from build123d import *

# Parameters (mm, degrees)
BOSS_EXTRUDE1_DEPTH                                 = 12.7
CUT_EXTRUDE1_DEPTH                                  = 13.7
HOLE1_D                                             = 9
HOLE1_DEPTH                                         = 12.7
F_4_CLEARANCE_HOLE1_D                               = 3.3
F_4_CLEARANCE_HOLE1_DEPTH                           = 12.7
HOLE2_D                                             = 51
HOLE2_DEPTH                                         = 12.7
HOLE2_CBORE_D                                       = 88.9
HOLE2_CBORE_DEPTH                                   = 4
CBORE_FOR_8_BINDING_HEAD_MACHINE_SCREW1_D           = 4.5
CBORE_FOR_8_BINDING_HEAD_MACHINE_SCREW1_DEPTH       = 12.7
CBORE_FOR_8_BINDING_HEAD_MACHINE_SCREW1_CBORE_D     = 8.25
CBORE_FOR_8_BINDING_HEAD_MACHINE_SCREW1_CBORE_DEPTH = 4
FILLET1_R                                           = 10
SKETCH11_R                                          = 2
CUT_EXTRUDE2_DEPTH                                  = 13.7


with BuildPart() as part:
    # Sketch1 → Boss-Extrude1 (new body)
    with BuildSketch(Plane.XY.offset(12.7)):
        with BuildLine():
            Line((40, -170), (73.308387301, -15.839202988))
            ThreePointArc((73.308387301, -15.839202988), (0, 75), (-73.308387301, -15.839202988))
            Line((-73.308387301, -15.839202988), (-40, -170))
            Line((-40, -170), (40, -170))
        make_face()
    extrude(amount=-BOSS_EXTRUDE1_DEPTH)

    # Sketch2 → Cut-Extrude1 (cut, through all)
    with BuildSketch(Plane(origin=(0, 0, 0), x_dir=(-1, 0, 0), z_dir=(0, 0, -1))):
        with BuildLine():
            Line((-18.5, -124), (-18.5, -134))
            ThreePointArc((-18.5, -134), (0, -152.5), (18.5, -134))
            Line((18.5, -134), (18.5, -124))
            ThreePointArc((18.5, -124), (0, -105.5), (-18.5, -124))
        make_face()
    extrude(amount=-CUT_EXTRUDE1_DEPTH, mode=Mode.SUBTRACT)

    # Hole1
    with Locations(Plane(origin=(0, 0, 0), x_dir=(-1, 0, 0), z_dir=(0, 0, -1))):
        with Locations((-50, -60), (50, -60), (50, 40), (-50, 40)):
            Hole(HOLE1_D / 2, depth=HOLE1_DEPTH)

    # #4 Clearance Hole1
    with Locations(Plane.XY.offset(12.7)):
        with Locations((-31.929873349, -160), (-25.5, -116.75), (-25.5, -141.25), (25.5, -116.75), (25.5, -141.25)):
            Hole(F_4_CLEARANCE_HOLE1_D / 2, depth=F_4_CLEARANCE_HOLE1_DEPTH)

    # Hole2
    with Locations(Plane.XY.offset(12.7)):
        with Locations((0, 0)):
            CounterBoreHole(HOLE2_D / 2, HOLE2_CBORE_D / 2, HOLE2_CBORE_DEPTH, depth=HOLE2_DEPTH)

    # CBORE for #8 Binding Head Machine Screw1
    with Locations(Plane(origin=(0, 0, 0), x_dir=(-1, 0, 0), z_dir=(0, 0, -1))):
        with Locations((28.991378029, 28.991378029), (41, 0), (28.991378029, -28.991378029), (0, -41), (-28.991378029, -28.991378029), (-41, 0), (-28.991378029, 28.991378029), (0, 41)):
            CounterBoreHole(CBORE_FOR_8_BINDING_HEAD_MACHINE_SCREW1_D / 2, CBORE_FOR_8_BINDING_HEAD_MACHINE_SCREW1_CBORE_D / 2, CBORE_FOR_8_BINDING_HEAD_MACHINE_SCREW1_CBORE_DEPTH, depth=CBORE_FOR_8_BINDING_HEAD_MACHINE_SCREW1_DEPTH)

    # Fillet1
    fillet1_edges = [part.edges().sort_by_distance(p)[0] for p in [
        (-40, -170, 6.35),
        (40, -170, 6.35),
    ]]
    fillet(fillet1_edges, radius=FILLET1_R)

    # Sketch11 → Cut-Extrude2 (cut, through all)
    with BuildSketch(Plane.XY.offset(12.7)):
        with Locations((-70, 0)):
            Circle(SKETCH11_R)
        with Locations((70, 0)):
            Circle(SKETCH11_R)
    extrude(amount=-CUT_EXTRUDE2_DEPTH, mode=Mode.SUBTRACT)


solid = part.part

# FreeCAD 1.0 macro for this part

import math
import FreeCAD as App
import Part
import Sketcher
from FreeCAD import Vector


def edges_at(feature, points):
    """Names of the edges that pass closest to the given points."""
    edges = feature.Shape.Edges
    near = lambda p: min(range(len(edges)), key=lambda i: edges[i].distToShape(Part.Vertex(*p))[0])
    return sorted({f"Edge{near(p) + 1}" for p in points})

doc = App.newDocument("Part")
body = doc.addObject("PartDesign::Body", "Body")

# Sketch on XY plane
sketch1 = body.newObject("Sketcher::SketchObject", "Sketch")
sketch1.AttachmentSupport = (doc.getObject("XY_Plane"), [""])
sketch1.MapMode = "FlatFace"
sketch1.AttachmentOffset = App.Placement(Vector(0, 0, 12.7), App.Rotation())
sketch1.addGeometry(Part.LineSegment(Vector(40, -170, 0), Vector(73, -16, 0)), False)
sketch1.addGeometry(Part.ArcOfCircle(Part.Circle(Vector(0, 0, 0), Vector(0, 0, 1), 75), math.radians(-12), math.radians(192)), False)
sketch1.addGeometry(Part.LineSegment(Vector(-73, -16, 0), Vector(-40, -170, 0)), False)
sketch1.addGeometry(Part.LineSegment(Vector(-40, -170, 0), Vector(40, -170, 0)), False)
sketch1.addConstraint(Sketcher.Constraint("Tangent", 0, 2, 1, 1))
sketch1.addConstraint(Sketcher.Constraint("Tangent", 1, 2, 2, 1))
sketch1.addConstraint(Sketcher.Constraint("Coincident", 2, 2, 3, 1))
sketch1.addConstraint(Sketcher.Constraint("Coincident", 3, 2, 0, 1))
sketch1.addConstraint(Sketcher.Constraint("Horizontal", 3))
sketch1.addConstraint(Sketcher.Constraint("Coincident", 1, 3, -1, 1))
sketch1.addConstraint(Sketcher.Constraint("Horizontal", 0, 2, 1, 2))
sketch1.addConstraint(Sketcher.Constraint("Radius", 1, 75.0))
sketch1.addConstraint(Sketcher.Constraint("DistanceX", 3, 1, 3, 2, 80.0))
sketch1.addConstraint(Sketcher.Constraint("DistanceY", 2, 2, -1, 1, 170.0))
pad1 = body.newObject("PartDesign::Pad", "Pad")
pad1.Profile = sketch1
pad1.Length = 12.7
pad1.Reversed = True

# Sketch on XY plane
sketch2 = body.newObject("Sketcher::SketchObject", "Sketch001")
sketch2.AttachmentSupport = (doc.getObject("XY_Plane"), [""])
sketch2.MapMode = "FlatFace"
sketch2.addGeometry(Part.LineSegment(Vector(18, -124, 0), Vector(18, -134, 0)), False)
sketch2.addGeometry(Part.ArcOfCircle(Part.Circle(Vector(0, -134, 0), Vector(0, 0, 1), 18), math.radians(180), math.radians(360)), False)
sketch2.addGeometry(Part.LineSegment(Vector(-18, -134, 0), Vector(-18, -124, 0)), False)
sketch2.addGeometry(Part.ArcOfCircle(Part.Circle(Vector(0, -124, 0), Vector(0, 0, 1), 18), math.radians(0), math.radians(180)), False)
sketch2.addConstraint(Sketcher.Constraint("Tangent", 0, 2, 1, 2))
sketch2.addConstraint(Sketcher.Constraint("Tangent", 1, 1, 2, 1))
sketch2.addConstraint(Sketcher.Constraint("Tangent", 2, 2, 3, 2))
sketch2.addConstraint(Sketcher.Constraint("Tangent", 3, 1, 0, 1))
sketch2.addConstraint(Sketcher.Constraint("Vertical", 0))
sketch2.addConstraint(Sketcher.Constraint("Vertical", 2))
sketch2.addConstraint(Sketcher.Constraint("PointOnObject", 1, 3, -2))
sketch2.addConstraint(Sketcher.Constraint("Radius", 1, 18.5))
sketch2.addConstraint(Sketcher.Constraint("DistanceY", 0, 2, 0, 1, 10.0))
sketch2.addConstraint(Sketcher.Constraint("DistanceY", 1, 3, -1, 1, 134.0))
pocket1 = body.newObject("PartDesign::Pocket", "Pocket")
pocket1.Profile = sketch2
pocket1.Type = "ThroughAll"
pocket1.Reversed = True

# Sketch on XY plane
sketch3 = body.newObject("Sketcher::SketchObject", "Sketch002")
sketch3.AttachmentSupport = (doc.getObject("XY_Plane"), [""])
sketch3.MapMode = "FlatFace"
sketch3.addGeometry(Part.Circle(Vector(50, -60, 0), Vector(0, 0, 1), 4.5), False)
sketch3.addGeometry(Part.Circle(Vector(-50, -60, 0), Vector(0, 0, 1), 4.5), False)
sketch3.addGeometry(Part.Circle(Vector(-50, 40, 0), Vector(0, 0, 1), 4.5), False)
sketch3.addGeometry(Part.Circle(Vector(50, 40, 0), Vector(0, 0, 1), 4.5), False)
sketch3.addConstraint(Sketcher.Constraint("Equal", 0, 1))
sketch3.addConstraint(Sketcher.Constraint("Equal", 1, 2))
sketch3.addConstraint(Sketcher.Constraint("Equal", 2, 3))
sketch3.addConstraint(Sketcher.Constraint("Symmetric", 0, 3, 1, 3, -2))
sketch3.addConstraint(Sketcher.Constraint("Symmetric", 2, 3, 3, 3, -2))
sketch3.addConstraint(Sketcher.Constraint("Vertical", 1, 3, 2, 3))
sketch3.addConstraint(Sketcher.Constraint("Diameter", 0, 9.0))
sketch3.addConstraint(Sketcher.Constraint("DistanceX", -1, 1, 0, 3, 50.0))
sketch3.addConstraint(Sketcher.Constraint("DistanceY", 0, 3, -1, 1, 60.0))
sketch3.addConstraint(Sketcher.Constraint("DistanceY", -1, 1, 2, 3, 40.0))
doc.recompute()
hole = body.newObject("PartDesign::Hole", "Hole")
hole.Profile = sketch3
hole.ThreadType = "None"
hole.Diameter = 9
hole.DepthType = "Dimension"
hole.Depth = 12.7
hole.DrillPoint = "Flat"
hole.Reversed = True

# Sketch on XY plane
sketch4 = body.newObject("Sketcher::SketchObject", "Sketch003")
sketch4.AttachmentSupport = (doc.getObject("XY_Plane"), [""])
sketch4.MapMode = "FlatFace"
sketch4.AttachmentOffset = App.Placement(Vector(0, 0, 12.7), App.Rotation())
sketch4.addGeometry(Part.Circle(Vector(-31.9, -160, 0), Vector(0, 0, 1), 1.6), False)
sketch4.addGeometry(Part.Circle(Vector(-25.5, -116.8, 0), Vector(0, 0, 1), 1.6), False)
sketch4.addGeometry(Part.Circle(Vector(-25.5, -141.2, 0), Vector(0, 0, 1), 1.6), False)
sketch4.addGeometry(Part.Circle(Vector(25.5, -116.8, 0), Vector(0, 0, 1), 1.6), False)
sketch4.addGeometry(Part.Circle(Vector(25.5, -141.2, 0), Vector(0, 0, 1), 1.6), False)
sketch4.addConstraint(Sketcher.Constraint("Equal", 0, 1))
sketch4.addConstraint(Sketcher.Constraint("Equal", 1, 2))
sketch4.addConstraint(Sketcher.Constraint("Equal", 2, 3))
sketch4.addConstraint(Sketcher.Constraint("Equal", 3, 4))
sketch4.addConstraint(Sketcher.Constraint("Symmetric", 1, 3, 3, 3, -2))
sketch4.addConstraint(Sketcher.Constraint("Symmetric", 2, 3, 4, 3, -2))
sketch4.addConstraint(Sketcher.Constraint("Vertical", 1, 3, 2, 3))
sketch4.addConstraint(Sketcher.Constraint("Diameter", 0, 3.3))
sketch4.addConstraint(Sketcher.Constraint("DistanceY", 0, 3, -1, 1, 160.0))
sketch4.addConstraint(Sketcher.Constraint("DistanceX", 1, 3, 3, 3, 51.0))
sketch4.addConstraint(Sketcher.Constraint("DistanceY", 2, 3, 1, 3, 24.5))
sketch4.addConstraint(Sketcher.Constraint("DistanceY", 1, 3, -1, 1, 116.75))
sketch4.addConstraint(Sketcher.Constraint("DistanceX", 0, 3, -1, 1, 31.929873))
doc.recompute()
hole2 = body.newObject("PartDesign::Hole", "Hole001")
hole2.Profile = sketch4
hole2.ThreadType = "None"
hole2.Diameter = 3.3
hole2.DepthType = "Dimension"
hole2.Depth = 12.7
hole2.DrillPoint = "Flat"

# Sketch on XY plane
sketch5 = body.newObject("Sketcher::SketchObject", "Sketch004")
sketch5.AttachmentSupport = (doc.getObject("XY_Plane"), [""])
sketch5.MapMode = "FlatFace"
sketch5.AttachmentOffset = App.Placement(Vector(0, 0, 12.7), App.Rotation())
sketch5.addGeometry(Part.Circle(Vector(0, 0, 0), Vector(0, 0, 1), 26), False)
sketch5.addConstraint(Sketcher.Constraint("Coincident", 0, 3, -1, 1))
sketch5.addConstraint(Sketcher.Constraint("Diameter", 0, 51.0))
doc.recompute()
hole3 = body.newObject("PartDesign::Hole", "Hole002")
hole3.Profile = sketch5
hole3.ThreadType = "None"
hole3.Diameter = 51
hole3.DepthType = "Dimension"
hole3.Depth = 12.7
hole3.DrillPoint = "Flat"
hole3.HoleCutType = "Counterbore"
hole3.HoleCutDiameter = 88.9
hole3.HoleCutDepth = 4

# Sketch on XY plane
sketch6 = body.newObject("Sketcher::SketchObject", "Sketch005")
sketch6.AttachmentSupport = (doc.getObject("XY_Plane"), [""])
sketch6.MapMode = "FlatFace"
sketch6.addGeometry(Part.Circle(Vector(-29, 29, 0), Vector(0, 0, 1), 2.2), False)
sketch6.addGeometry(Part.Circle(Vector(-41, 0, 0), Vector(0, 0, 1), 2.2), False)
sketch6.addGeometry(Part.Circle(Vector(-29, -29, 0), Vector(0, 0, 1), 2.2), False)
sketch6.addGeometry(Part.Circle(Vector(0, -41, 0), Vector(0, 0, 1), 2.2), False)
sketch6.addGeometry(Part.Circle(Vector(29, -29, 0), Vector(0, 0, 1), 2.2), False)
sketch6.addGeometry(Part.Circle(Vector(41, 0, 0), Vector(0, 0, 1), 2.2), False)
sketch6.addGeometry(Part.Circle(Vector(29, 29, 0), Vector(0, 0, 1), 2.2), False)
sketch6.addGeometry(Part.Circle(Vector(0, 41, 0), Vector(0, 0, 1), 2.2), False)
sketch6.addConstraint(Sketcher.Constraint("Equal", 0, 1))
sketch6.addConstraint(Sketcher.Constraint("Equal", 1, 2))
sketch6.addConstraint(Sketcher.Constraint("Equal", 2, 3))
sketch6.addConstraint(Sketcher.Constraint("Equal", 3, 4))
sketch6.addConstraint(Sketcher.Constraint("Equal", 4, 5))
sketch6.addConstraint(Sketcher.Constraint("Equal", 5, 6))
sketch6.addConstraint(Sketcher.Constraint("Equal", 6, 7))
sketch6.addConstraint(Sketcher.Constraint("Symmetric", 0, 3, 4, 3, -1, 1))
sketch6.addConstraint(Sketcher.Constraint("Symmetric", 1, 3, 5, 3, -1, 1))
sketch6.addConstraint(Sketcher.Constraint("Symmetric", 2, 3, 6, 3, -1, 1))
sketch6.addConstraint(Sketcher.Constraint("Symmetric", 3, 3, 7, 3, -1, 1))
sketch6.addConstraint(Sketcher.Constraint("Symmetric", 2, 3, 4, 3, -2))
sketch6.addConstraint(Sketcher.Constraint("PointOnObject", 1, 3, -1))
sketch6.addConstraint(Sketcher.Constraint("PointOnObject", 3, 3, -2))
sketch6.addConstraint(Sketcher.Constraint("Diameter", 0, 4.5))
sketch6.addConstraint(Sketcher.Constraint("DistanceX", 1, 3, -1, 1, 41.0))
sketch6.addConstraint(Sketcher.Constraint("DistanceY", 3, 3, -1, 1, 41.0))
sketch6.addConstraint(Sketcher.Constraint("DistanceX", 0, 3, -1, 1, 28.991378))
sketch6.addConstraint(Sketcher.Constraint("DistanceY", -1, 1, 0, 3, 28.991378))
doc.recompute()
hole4 = body.newObject("PartDesign::Hole", "Hole003")
hole4.Profile = sketch6
hole4.ThreadType = "None"
hole4.Diameter = 4.5
hole4.DepthType = "Dimension"
hole4.Depth = 12.7
hole4.DrillPoint = "Flat"
hole4.HoleCutType = "Counterbore"
hole4.HoleCutDiameter = 8.25
hole4.HoleCutDepth = 4
hole4.Reversed = True
doc.recompute()

fillet = body.newObject("PartDesign::Fillet", "Fillet")
fillet.Base = (hole4, edges_at(hole4, [(-40, -170, 6.35), (40, -170, 6.35)]))
fillet.Radius = 10

# Sketch on XY plane
sketch7 = body.newObject("Sketcher::SketchObject", "Sketch006")
sketch7.AttachmentSupport = (doc.getObject("XY_Plane"), [""])
sketch7.MapMode = "FlatFace"
sketch7.AttachmentOffset = App.Placement(Vector(0, 0, 12.7), App.Rotation())
sketch7.addGeometry(Part.Circle(Vector(-70, 0, 0), Vector(0, 0, 1), 2), False)
sketch7.addGeometry(Part.Circle(Vector(70, 0, 0), Vector(0, 0, 1), 2), False)
sketch7.addConstraint(Sketcher.Constraint("Equal", 0, 1))
sketch7.addConstraint(Sketcher.Constraint("Symmetric", 0, 3, 1, 3, -1, 1))
sketch7.addConstraint(Sketcher.Constraint("PointOnObject", 0, 3, -1))
sketch7.addConstraint(Sketcher.Constraint("Diameter", 0, 4.0))
sketch7.addConstraint(Sketcher.Constraint("DistanceX", 0, 3, -1, 1, 70.0))
pocket2 = body.newObject("PartDesign::Pocket", "Pocket001")
pocket2.Profile = sketch7
pocket2.Type = "ThroughAll"

doc.recompute()
